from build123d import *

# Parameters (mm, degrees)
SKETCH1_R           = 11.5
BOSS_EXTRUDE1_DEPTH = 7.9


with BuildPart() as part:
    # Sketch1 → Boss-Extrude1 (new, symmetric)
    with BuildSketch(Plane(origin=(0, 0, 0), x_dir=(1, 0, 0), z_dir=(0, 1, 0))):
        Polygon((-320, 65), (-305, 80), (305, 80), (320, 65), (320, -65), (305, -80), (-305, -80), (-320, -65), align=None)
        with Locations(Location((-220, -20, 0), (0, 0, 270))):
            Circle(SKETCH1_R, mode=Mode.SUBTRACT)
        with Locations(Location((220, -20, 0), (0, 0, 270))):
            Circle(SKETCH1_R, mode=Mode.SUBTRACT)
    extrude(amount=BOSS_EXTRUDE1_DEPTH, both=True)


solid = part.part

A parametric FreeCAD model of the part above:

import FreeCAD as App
import Part
import Sketcher
Q = App.Units.Quantity

doc = App.newDocument("Part")
body = doc.addObject("PartDesign::Body", "Body")

# Sketch on XZ plane
sketch1 = body.newObject("Sketcher::SketchObject", "Sketch")
sketch1.AttachmentSupport = (doc.getObject("XZ_Plane"), [""])
sketch1.MapMode = "FlatFace"
sketch1.addGeometry([
    Part.LineSegment(App.Vector(-305, -80, 0), App.Vector(-320, -65, 0)),  # 0
    Part.LineSegment(App.Vector(-320, -65, 0), App.Vector(-320, 65, 0)),  # 1
    Part.LineSegment(App.Vector(-320, 65, 0), App.Vector(-305, 80, 0)),  # 2
    Part.LineSegment(App.Vector(-305, 80, 0), App.Vector(305, 80, 0)),  # 3
    Part.LineSegment(App.Vector(305, 80, 0), App.Vector(320, 65, 0)),  # 4
    Part.LineSegment(App.Vector(320, 65, 0), App.Vector(320, -65, 0)),  # 5
    Part.LineSegment(App.Vector(320, -65, 0), App.Vector(305, -80, 0)),  # 6
    Part.LineSegment(App.Vector(305, -80, 0), App.Vector(-305, -80, 0)),  # 7
    Part.Circle(App.Vector(220, 20, 0), App.Vector(0, 0, 1), 12),  # 8
    Part.Circle(App.Vector(-220, 20, 0), App.Vector(0, 0, 1), 12),  # 9
], False)
sketch1.addConstraint([
    Sketcher.Constraint("Coincident", 0, 2, 1, 1),
    Sketcher.Constraint("Coincident", 1, 2, 2, 1),
    Sketcher.Constraint("Coincident", 2, 2, 3, 1),
    Sketcher.Constraint("Coincident", 3, 2, 4, 1),
    Sketcher.Constraint("Coincident", 4, 2, 5, 1),
    Sketcher.Constraint("Coincident", 5, 2, 6, 1),
    Sketcher.Constraint("Coincident", 6, 2, 7, 1),
    Sketcher.Constraint("Coincident", 7, 2, 0, 1),
    Sketcher.Constraint("Vertical", 1),
    Sketcher.Constraint("Horizontal", 3),
    Sketcher.Constraint("Vertical", 5),
    Sketcher.Constraint("Horizontal", 7),
    Sketcher.Constraint("Equal", 8, 9),
    Sketcher.Constraint("Symmetric", 0, 2, 4, 2, -1, 1),
    Sketcher.Constraint("Symmetric", 2, 2, 6, 2, -1, 1),
    Sketcher.Constraint("Symmetric", 8, 3, 9, 3, -2),
    Sketcher.Constraint("Perpendicular", 0, 2),
    Sketcher.Constraint("Perpendicular", 2, 4),
    Sketcher.Constraint("Perpendicular", 4, 6),
    Sketcher.Constraint("Horizontal", 1, 2, 4, 2),
    Sketcher.Constraint("Vertical", 3, 2, 6, 2),
    Sketcher.Constraint("Diameter", 8, Q("23 mm")),
    Sketcher.Constraint("DistanceX", 3, 1, 3, 2, Q("610 mm")),
    Sketcher.Constraint("DistanceY", 1, 1, 1, 2, Q("130 mm")),
    Sketcher.Constraint("DistanceX", -1, 1, 8, 3, Q("220 mm")),
    Sketcher.Constraint("DistanceY", -1, 1, 8, 3, Q("20 mm")),
    Sketcher.Constraint("DistanceX", 0, 2, -1, 1, Q("320 mm")),
])
pad1 = body.newObject("PartDesign::Pad", "Pad")
pad1.Profile = sketch1
pad1.Length = 15.8
pad1.Midplane = True

doc.recompute()
